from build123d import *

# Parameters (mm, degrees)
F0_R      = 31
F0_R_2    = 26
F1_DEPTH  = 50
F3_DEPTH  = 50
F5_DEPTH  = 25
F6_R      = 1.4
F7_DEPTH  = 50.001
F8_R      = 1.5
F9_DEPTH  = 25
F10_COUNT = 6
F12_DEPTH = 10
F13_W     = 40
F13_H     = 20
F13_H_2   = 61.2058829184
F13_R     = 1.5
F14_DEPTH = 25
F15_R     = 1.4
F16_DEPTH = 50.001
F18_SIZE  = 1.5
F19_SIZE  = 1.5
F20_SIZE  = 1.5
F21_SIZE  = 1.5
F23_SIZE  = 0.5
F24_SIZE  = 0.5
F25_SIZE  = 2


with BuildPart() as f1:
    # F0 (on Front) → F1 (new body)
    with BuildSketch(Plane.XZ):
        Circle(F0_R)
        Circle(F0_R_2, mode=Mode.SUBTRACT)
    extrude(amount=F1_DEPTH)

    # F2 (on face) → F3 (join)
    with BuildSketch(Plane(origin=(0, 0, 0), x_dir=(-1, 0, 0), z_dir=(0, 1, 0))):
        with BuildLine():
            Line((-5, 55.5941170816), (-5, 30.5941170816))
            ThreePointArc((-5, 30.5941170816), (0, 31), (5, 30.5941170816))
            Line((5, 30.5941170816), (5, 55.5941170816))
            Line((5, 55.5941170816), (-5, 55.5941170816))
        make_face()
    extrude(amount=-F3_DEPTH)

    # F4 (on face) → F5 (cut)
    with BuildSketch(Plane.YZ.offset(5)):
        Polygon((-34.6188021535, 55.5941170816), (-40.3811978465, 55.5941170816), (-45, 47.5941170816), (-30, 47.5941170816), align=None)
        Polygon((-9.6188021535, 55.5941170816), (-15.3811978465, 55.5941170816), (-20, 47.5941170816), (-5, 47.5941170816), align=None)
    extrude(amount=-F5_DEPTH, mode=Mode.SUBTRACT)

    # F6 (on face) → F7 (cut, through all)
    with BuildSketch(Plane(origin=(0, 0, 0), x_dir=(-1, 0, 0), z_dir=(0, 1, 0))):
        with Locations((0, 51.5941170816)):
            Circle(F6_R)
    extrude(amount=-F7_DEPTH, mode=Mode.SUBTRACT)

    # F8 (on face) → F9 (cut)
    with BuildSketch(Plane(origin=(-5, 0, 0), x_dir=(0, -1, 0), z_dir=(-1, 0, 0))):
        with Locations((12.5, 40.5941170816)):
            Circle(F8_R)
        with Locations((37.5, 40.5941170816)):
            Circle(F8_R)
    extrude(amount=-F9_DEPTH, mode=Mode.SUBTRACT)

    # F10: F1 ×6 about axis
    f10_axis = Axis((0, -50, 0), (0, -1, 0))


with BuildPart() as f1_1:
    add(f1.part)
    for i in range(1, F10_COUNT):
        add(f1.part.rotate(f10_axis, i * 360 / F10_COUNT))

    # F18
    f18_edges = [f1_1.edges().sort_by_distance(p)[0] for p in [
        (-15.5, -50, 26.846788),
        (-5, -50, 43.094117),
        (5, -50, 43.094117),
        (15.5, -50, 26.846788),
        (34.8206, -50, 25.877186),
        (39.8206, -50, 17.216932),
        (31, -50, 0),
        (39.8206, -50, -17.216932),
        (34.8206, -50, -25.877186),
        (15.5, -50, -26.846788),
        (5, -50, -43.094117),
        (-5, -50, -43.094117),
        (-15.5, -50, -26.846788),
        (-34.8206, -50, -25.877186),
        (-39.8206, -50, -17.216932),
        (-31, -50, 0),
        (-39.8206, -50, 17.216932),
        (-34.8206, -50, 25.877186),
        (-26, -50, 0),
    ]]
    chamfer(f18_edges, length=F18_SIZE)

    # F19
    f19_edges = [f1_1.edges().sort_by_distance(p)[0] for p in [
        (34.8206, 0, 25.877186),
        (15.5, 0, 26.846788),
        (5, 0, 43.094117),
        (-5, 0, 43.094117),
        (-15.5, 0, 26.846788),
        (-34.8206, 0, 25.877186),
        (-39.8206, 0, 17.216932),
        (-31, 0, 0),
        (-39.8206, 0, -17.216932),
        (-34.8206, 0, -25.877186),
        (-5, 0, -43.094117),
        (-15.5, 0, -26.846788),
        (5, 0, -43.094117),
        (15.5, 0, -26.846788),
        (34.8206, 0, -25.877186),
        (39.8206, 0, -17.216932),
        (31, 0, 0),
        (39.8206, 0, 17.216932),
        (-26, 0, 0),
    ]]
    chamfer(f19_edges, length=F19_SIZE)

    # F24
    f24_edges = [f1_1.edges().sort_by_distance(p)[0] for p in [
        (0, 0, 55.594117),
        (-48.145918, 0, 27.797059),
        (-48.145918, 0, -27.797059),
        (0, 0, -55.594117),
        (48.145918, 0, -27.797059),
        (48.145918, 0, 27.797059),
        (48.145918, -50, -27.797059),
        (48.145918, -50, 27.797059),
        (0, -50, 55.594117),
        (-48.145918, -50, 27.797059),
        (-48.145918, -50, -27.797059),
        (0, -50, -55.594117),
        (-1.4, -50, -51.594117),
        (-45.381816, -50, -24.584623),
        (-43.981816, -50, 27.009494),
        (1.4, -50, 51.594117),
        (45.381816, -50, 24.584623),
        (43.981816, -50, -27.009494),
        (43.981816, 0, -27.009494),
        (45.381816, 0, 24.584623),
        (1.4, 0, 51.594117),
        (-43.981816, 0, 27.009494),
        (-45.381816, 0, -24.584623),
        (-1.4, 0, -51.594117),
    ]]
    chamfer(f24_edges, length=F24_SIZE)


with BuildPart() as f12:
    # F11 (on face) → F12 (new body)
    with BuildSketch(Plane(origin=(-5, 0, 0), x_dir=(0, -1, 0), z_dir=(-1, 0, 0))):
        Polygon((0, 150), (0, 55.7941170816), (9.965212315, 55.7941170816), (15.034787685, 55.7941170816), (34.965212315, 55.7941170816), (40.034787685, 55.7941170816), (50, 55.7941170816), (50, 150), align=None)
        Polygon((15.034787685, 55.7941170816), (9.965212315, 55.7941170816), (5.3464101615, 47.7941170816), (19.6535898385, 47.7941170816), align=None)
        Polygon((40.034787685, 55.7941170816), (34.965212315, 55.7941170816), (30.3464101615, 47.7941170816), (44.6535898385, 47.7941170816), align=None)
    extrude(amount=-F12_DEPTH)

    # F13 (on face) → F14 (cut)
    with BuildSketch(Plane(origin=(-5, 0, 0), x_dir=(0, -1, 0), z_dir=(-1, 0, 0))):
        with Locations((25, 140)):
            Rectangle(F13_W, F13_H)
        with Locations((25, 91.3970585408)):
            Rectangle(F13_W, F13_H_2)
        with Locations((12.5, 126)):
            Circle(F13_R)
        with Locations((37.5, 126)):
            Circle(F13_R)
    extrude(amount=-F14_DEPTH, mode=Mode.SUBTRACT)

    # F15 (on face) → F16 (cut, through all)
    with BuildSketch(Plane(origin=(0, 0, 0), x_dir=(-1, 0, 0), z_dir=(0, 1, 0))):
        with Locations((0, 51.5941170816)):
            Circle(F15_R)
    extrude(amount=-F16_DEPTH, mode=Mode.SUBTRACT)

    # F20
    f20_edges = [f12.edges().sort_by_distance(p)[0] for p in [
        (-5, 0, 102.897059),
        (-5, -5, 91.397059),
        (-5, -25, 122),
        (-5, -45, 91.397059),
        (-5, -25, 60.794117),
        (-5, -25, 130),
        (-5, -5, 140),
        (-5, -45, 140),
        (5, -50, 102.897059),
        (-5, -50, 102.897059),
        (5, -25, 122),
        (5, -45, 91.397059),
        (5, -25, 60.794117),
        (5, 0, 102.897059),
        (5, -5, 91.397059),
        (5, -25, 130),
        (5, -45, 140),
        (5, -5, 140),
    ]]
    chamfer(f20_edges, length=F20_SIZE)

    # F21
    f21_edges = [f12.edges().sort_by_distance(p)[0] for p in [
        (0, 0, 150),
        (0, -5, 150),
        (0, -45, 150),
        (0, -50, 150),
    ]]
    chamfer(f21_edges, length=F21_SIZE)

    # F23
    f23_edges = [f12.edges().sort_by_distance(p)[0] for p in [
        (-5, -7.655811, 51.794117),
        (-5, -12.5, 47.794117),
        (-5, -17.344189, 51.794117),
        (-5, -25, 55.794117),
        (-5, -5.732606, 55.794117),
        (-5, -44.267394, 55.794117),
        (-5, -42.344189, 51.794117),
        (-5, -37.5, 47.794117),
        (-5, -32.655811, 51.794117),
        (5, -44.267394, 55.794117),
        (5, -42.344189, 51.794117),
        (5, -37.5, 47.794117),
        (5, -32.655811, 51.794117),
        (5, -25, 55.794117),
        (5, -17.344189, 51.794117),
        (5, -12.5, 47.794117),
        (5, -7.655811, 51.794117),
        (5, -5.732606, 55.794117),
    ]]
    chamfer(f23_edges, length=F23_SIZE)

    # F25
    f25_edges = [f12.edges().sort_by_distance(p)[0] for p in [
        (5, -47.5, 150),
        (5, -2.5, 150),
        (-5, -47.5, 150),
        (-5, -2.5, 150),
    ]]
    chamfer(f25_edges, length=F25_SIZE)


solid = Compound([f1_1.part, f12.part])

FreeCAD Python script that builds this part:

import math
import FreeCAD as App
import Part
import Sketcher
from FreeCAD import Vector
Q = App.Units.Quantity


def edges_at(feature, points):
    """Names of the edges that pass closest to the given points."""
    edges = feature.Shape.Edges
    near = lambda p: min(range(len(edges)), key=lambda i: edges[i].distToShape(Part.Vertex(*p))[0])
    return sorted({f"Edge{near(p) + 1}" for p in points})

doc = App.newDocument("Part")
body = doc.addObject("PartDesign::Body", "Body")

# Sketch on XZ plane
sketch1 = body.newObject("Sketcher::SketchObject", "Sketch")
sketch1.AttachmentSupport = (doc.getObject("XZ_Plane"), [""])
sketch1.MapMode = "FlatFace"
sketch1.addGeometry([
    Part.Circle(Vector(0, 0, 0), Vector(0, 0, 1), 31),
    Part.Circle(Vector(0, 0, 0), Vector(0, 0, 1), 26),
], False)
sketch1.addConstraint([
    Sketcher.Constraint("Coincident", 0, 3, -1, 1),
    Sketcher.Constraint("Coincident", 1, 3, -1, 1),
    Sketcher.Constraint("Diameter", 0, 62.0),
    Sketcher.Constraint("Diameter", 1, 52.0),
])
pad1 = body.newObject("PartDesign::Pad", "Pad")
pad1.Profile = sketch1
pad1.Length = 50

# Sketch on XZ plane
sketch2 = body.newObject("Sketcher::SketchObject", "Sketch001")
sketch2.AttachmentSupport = (doc.getObject("XZ_Plane"), [""])
sketch2.MapMode = "FlatFace"
sketch2.addGeometry([
    Part.LineSegment(Vector(5, 55.594117, 0), Vector(5, 30.594117, 0)),
    Part.ArcOfCircle(Part.Circle(Vector(0, 0, 0), Vector(0, 0, 1), 31), math.radians(80.718201), math.radians(99.281799)),
    Part.LineSegment(Vector(-5, 30.594117, 0), Vector(-5, 55.594117, 0)),
    Part.LineSegment(Vector(-5, 55.594117, 0), Vector(5, 55.594117, 0)),
], False)
sketch2.addConstraint([
    Sketcher.Constraint("Coincident", 0, 2, 1, 1),
    Sketcher.Constraint("Coincident", 1, 2, 2, 1),
    Sketcher.Constraint("Coincident", 2, 2, 3, 1),
    Sketcher.Constraint("Coincident", 3, 2, 0, 1),
    Sketcher.Constraint("Vertical", 0),
    Sketcher.Constraint("Vertical", 2),
    Sketcher.Constraint("Horizontal", 3),
    Sketcher.Constraint("Coincident", 1, 3, -1, 1),
    Sketcher.Constraint("Horizontal", 0, 2, 1, 2),
    Sketcher.Constraint("Radius", 1, 31.0),
    Sketcher.Constraint("DistanceX", 3, 1, 3, 2, 10.0),
    Sketcher.Constraint("DistanceY", 0, 2, 0, 1, 25.0),
])
pad2 = body.newObject("PartDesign::Pad", "Pad001")
pad2.Profile = sketch2
pad2.Length = 50

# Sketch on YZ plane
sketch3 = body.newObject("Sketcher::SketchObject", "Sketch002")
sketch3.AttachmentSupport = (doc.getObject("YZ_Plane"), [""])
sketch3.MapMode = "FlatFace"
sketch3.AttachmentOffset = App.Placement(Vector(0, 0, 5), App.Rotation())
sketch3.addGeometry([
    Part.LineSegment(Vector(-34.618802, 55.594117, 0), Vector(-40.381198, 55.594117, 0)),  # 0
    Part.LineSegment(Vector(-40.381198, 55.594117, 0), Vector(-45, 47.594117, 0)),  # 1
    Part.LineSegment(Vector(-45, 47.594117, 0), Vector(-30, 47.594117, 0)),  # 2
    Part.LineSegment(Vector(-30, 47.594117, 0), Vector(-34.618802, 55.594117, 0)),  # 3
    Part.LineSegment(Vector(-9.618802, 55.594117, 0), Vector(-15.381198, 55.594117, 0)),  # 4
    Part.LineSegment(Vector(-15.381198, 55.594117, 0), Vector(-20, 47.594117, 0)),  # 5
    Part.LineSegment(Vector(-20, 47.594117, 0), Vector(-5, 47.594117, 0)),  # 6
    Part.LineSegment(Vector(-5, 47.594117, 0), Vector(-9.618802, 55.594117, 0)),  # 7
], False)
sketch3.addConstraint([
    Sketcher.Constraint("Coincident", 0, 2, 1, 1),
    Sketcher.Constraint("Coincident", 1, 2, 2, 1),
    Sketcher.Constraint("Coincident", 2, 2, 3, 1),
    Sketcher.Constraint("Coincident", 3, 2, 0, 1),
    Sketcher.Constraint("Coincident", 4, 2, 5, 1),
    Sketcher.Constraint("Coincident", 5, 2, 6, 1),
    Sketcher.Constraint("Coincident", 6, 2, 7, 1),
    Sketcher.Constraint("Coincident", 7, 2, 4, 1),
    Sketcher.Constraint("Horizontal", 0),
    Sketcher.Constraint("Horizontal", 2),
    Sketcher.Constraint("Horizontal", 4),
    Sketcher.Constraint("Horizontal", 6),
    Sketcher.Constraint("Parallel", 1, 5),
    Sketcher.Constraint("Parallel", 3, 7),
    Sketcher.Constraint("Horizontal", 3, 2, 4, 2),
    Sketcher.Constraint("Horizontal", 2, 2, 5, 2),
    Sketcher.Constraint("Equal", 0, 4),
    Sketcher.Constraint("Equal", 1, 3),
    Sketcher.Constraint("DistanceX", 2, 1, 2, 2, 15.0),
    Sketcher.Constraint("Angle", 1, Q("-120 deg")),
    Sketcher.Constraint("DistanceX", 1, 2, -1, 1, 45.0),
    Sketcher.Constraint("DistanceX", 5, 2, -1, 1, 20.0),
    Sketcher.Constraint("DistanceY", 1, 2, 0, 2, 8.0),
    Sketcher.Constraint("DistanceY", -1, 1, 0, 2, 55.594117),
])
pocket1 = body.newObject("PartDesign::Pocket", "Pocket")
pocket1.Profile = sketch3
pocket1.Length = 25

# Sketch on XZ plane
sketch4 = body.newObject("Sketcher::SketchObject", "Sketch003")
sketch4.AttachmentSupport = (doc.getObject("XZ_Plane"), [""])
sketch4.MapMode = "FlatFace"
sketch4.addGeometry(Part.Circle(Vector(0, 51.594117, 0), Vector(0, 0, 1), 1.4), False)
sketch4.addConstraint([
    Sketcher.Constraint("PointOnObject", 0, 3, -2),
    Sketcher.Constraint("Diameter", 0, 2.8),
    Sketcher.Constraint("DistanceY", -1, 1, 0, 3, 51.594117),
])
pocket2 = body.newObject("PartDesign::Pocket", "Pocket001")
pocket2.Profile = sketch4
pocket2.Type = "ThroughAll"
pocket2.Reversed = True

# Sketch on YZ plane
sketch5 = body.newObject("Sketcher::SketchObject", "Sketch004")
sketch5.AttachmentSupport = (doc.getObject("YZ_Plane"), [""])
sketch5.MapMode = "FlatFace"
sketch5.AttachmentOffset = App.Placement(Vector(0, 0, -5), App.Rotation())
sketch5.addGeometry([
    Part.Circle(Vector(-12.5, 40.594117, 0), Vector(0, 0, 1), 1.5),
    Part.Circle(Vector(-37.5, 40.594117, 0), Vector(0, 0, 1), 1.5),
], False)
sketch5.addConstraint([
    Sketcher.Constraint("Equal", 0, 1),
    Sketcher.Constraint("Horizontal", 0, 3, 1, 3),
    Sketcher.Constraint("Diameter", 0, 3.0),
    Sketcher.Constraint("DistanceX", 1, 3, 0, 3, 25.0),
    Sketcher.Constraint("DistanceX", 0, 3, -1, 1, 12.5),
    Sketcher.Constraint("DistanceY", -1, 1, 0, 3, 40.594117),
])
pocket3 = body.newObject("PartDesign::Pocket", "Pocket002")
pocket3.Profile = sketch5
pocket3.Length = 25
pocket3.Reversed = True
body2 = doc.addObject("PartDesign::Body", "Body001")
doc.recompute()

body2.BaseFeature = body
doc.recompute()

body3 = doc.addObject("PartDesign::Body", "Body002")
body3.BaseFeature = body
body3.Placement = App.Placement(Vector(0, 0, 0), App.Rotation(Vector(0, -1, 0), 60))
boolean = body2.newObject("PartDesign::Boolean", "Boolean")
boolean.Type = "Fuse"
boolean.addObjects([body3])
doc.recompute()

body4 = doc.addObject("PartDesign::Body", "Body003")
body4.BaseFeature = body
body4.Placement = App.Placement(Vector(0, 0, 0), App.Rotation(Vector(0, -1, 0), 120))
boolean2 = body2.newObject("PartDesign::Boolean", "Boolean001")
boolean2.Type = "Fuse"
boolean2.addObjects([body4])
doc.recompute()

body5 = doc.addObject("PartDesign::Body", "Body004")
body5.BaseFeature = body
body5.Placement = App.Placement(Vector(0, 0, 0), App.Rotation(Vector(0, -1, 0), 180))
boolean3 = body2.newObject("PartDesign::Boolean", "Boolean002")
boolean3.Type = "Fuse"
boolean3.addObjects([body5])
doc.recompute()

body6 = doc.addObject("PartDesign::Body", "Body005")
body6.BaseFeature = body
body6.Placement = App.Placement(Vector(0, 0, 0), App.Rotation(Vector(0, -1, 0), 240))
boolean4 = body2.newObject("PartDesign::Boolean", "Boolean003")
boolean4.Type = "Fuse"
boolean4.addObjects([body6])
doc.recompute()

body.Placement = App.Placement(Vector(0, 0, 0), App.Rotation(Vector(0, -1, 0), 300))
boolean5 = body2.newObject("PartDesign::Boolean", "Boolean004")
boolean5.Type = "Fuse"
boolean5.addObjects([body])
doc.recompute()

chamfer = body2.newObject("PartDesign::Chamfer", "Chamfer")
chamfer.Base = (boolean5, edges_at(boolean5, [
    (-15.5, -50, 26.847),
    (-5, -50, 43.094),
    (5, -50, 43.094),
    (15.5, -50, 26.847),
    (34.821, -50, 25.877),
    (39.821, -50, 17.217),
    (31, -50, 0),
    (39.821, -50, -17.217),
    (34.821, -50, -25.877),
    (15.5, -50, -26.847),
    (5, -50, -43.094),
    (-5, -50, -43.094),
    (-15.5, -50, -26.847),
    (-34.821, -50, -25.877),
    (-39.821, -50, -17.217),
    (-31, -50, 0),
    (-39.821, -50, 17.217),
    (-34.821, -50, 25.877),
    (-26, -50, 0),
]))
chamfer.Size = 1.5
doc.recompute()

chamfer2 = body2.newObject("PartDesign::Chamfer", "Chamfer001")
chamfer2.Base = (chamfer, edges_at(chamfer, [
    (34.821, 0, 25.877),
    (15.5, 0, 26.847),
    (5, 0, 43.094),
    (-5, 0, 43.094),
    (-15.5, 0, 26.847),
    (-34.821, 0, 25.877),
    (-39.821, 0, 17.217),
    (-31, 0, 0),
    (-39.821, 0, -17.217),
    (-34.821, 0, -25.877),
    (-5, 0, -43.094),
    (-15.5, 0, -26.847),
    (5, 0, -43.094),
    (15.5, 0, -26.847),
    (34.821, 0, -25.877),
    (39.821, 0, -17.217),
    (31, 0, 0),
    (39.821, 0, 17.217),
    (-26, 0, 0),
]))
chamfer2.Size = 1.5
doc.recompute()

chamfer3 = body2.newObject("PartDesign::Chamfer", "Chamfer002")
chamfer3.Base = (chamfer2, edges_at(chamfer2, [
    (0, 0, 55.594),
    (-48.146, 0, 27.797),
    (-48.146, 0, -27.797),
    (0, 0, -55.594),
    (48.146, 0, -27.797),
    (48.146, 0, 27.797),
    (48.146, -50, -27.797),
    (48.146, -50, 27.797),
    (0, -50, 55.594),
    (-48.146, -50, 27.797),
    (-48.146, -50, -27.797),
    (0, -50, -55.594),
    (-1.4, -50, -51.594),
    (-45.382, -50, -24.585),
    (-43.982, -50, 27.009),
    (1.4, -50, 51.594),
    (45.382, -50, 24.585),
    (43.982, -50, -27.009),
    (43.982, 0, -27.009),
    (45.382, 0, 24.585),
    (1.4, 0, 51.594),
    (-43.982, 0, 27.009),
    (-45.382, 0, -24.585),
    (-1.4, 0, -51.594),
]))
chamfer3.Size = 0.5
body7 = doc.addObject("PartDesign::Body", "Body006")

# Sketch on YZ plane
sketch6 = body7.newObject("Sketcher::SketchObject", "Sketch005")
sketch6.AttachmentSupport = (doc.getObject("YZ_Plane006"), [""])
sketch6.MapMode = "FlatFace"
sketch6.AttachmentOffset = App.Placement(Vector(0, 0, -5), App.Rotation())
sketch6.addGeometry([
    Part.LineSegment(Vector(0, 150, 0), Vector(0, 55.794117, 0)),  # 0
    Part.LineSegment(Vector(0, 55.794117, 0), Vector(-9.965212, 55.794117, 0)),  # 1
    Part.LineSegment(Vector(-9.965212, 55.794117, 0), Vector(-5.34641, 47.794117, 0)),  # 2
    Part.LineSegment(Vector(-5.34641, 47.794117, 0), Vector(-19.65359, 47.794117, 0)),  # 3
    Part.LineSegment(Vector(-19.65359, 47.794117, 0), Vector(-15.034788, 55.794117, 0)),  # 4
    Part.LineSegment(Vector(-15.034788, 55.794117, 0), Vector(-34.965212, 55.794117, 0)),  # 5
    Part.LineSegment(Vector(-34.965212, 55.794117, 0), Vector(-30.34641, 47.794117, 0)),  # 6
    Part.LineSegment(Vector(-30.34641, 47.794117, 0), Vector(-44.65359, 47.794117, 0)),  # 7
    Part.LineSegment(Vector(-44.65359, 47.794117, 0), Vector(-40.034788, 55.794117, 0)),  # 8
    Part.LineSegment(Vector(-40.034788, 55.794117, 0), Vector(-50, 55.794117, 0)),  # 9
    Part.LineSegment(Vector(-50, 55.794117, 0), Vector(-50, 150, 0)),  # 10
    Part.LineSegment(Vector(-50, 150, 0), Vector(0, 150, 0)),  # 11
], False)
sketch6.addConstraint([
    Sketcher.Constraint("Coincident", 0, 2, 1, 1),
    Sketcher.Constraint("Coincident", 1, 2, 2, 1),
    Sketcher.Constraint("Coincident", 2, 2, 3, 1),
    Sketcher.Constraint("Coincident", 3, 2, 4, 1),
    Sketcher.Constraint("Coincident", 4, 2, 5, 1),
    Sketcher.Constraint("Coincident", 5, 2, 6, 1),
    Sketcher.Constraint("Coincident", 6, 2, 7, 1),
    Sketcher.Constraint("Coincident", 7, 2, 8, 1),
    Sketcher.Constraint("Coincident", 8, 2, 9, 1),
    Sketcher.Constraint("Coincident", 9, 2, 10, 1),
    Sketcher.Constraint("Coincident", 10, 2, 11, 1),
    Sketcher.Constraint("Coincident", 11, 2, 0, 1),
    Sketcher.Constraint("Vertical", 0),
    Sketcher.Constraint("Horizontal", 1),
    Sketcher.Constraint("Horizontal", 3),
    Sketcher.Constraint("Horizontal", 5),
    Sketcher.Constraint("Horizontal", 7),
    Sketcher.Constraint("Horizontal", 9),
    Sketcher.Constraint("Vertical", 10),
    Sketcher.Constraint("Horizontal", 11),
    Sketcher.Constraint("PointOnObject", 0, 2, -2),
    Sketcher.Constraint("Parallel", 2, 6),
    Sketcher.Constraint("Parallel", 4, 8),
    Sketcher.Constraint("Horizontal", 1, 2, 4, 2),
    Sketcher.Constraint("Horizontal", 3, 2, 6, 2),
    Sketcher.Constraint("Horizontal", 5, 2, 8, 2),
    Sketcher.Constraint("Equal", 3, 7),
    Sketcher.Constraint("Equal", 1, 9),
    Sketcher.Constraint("Equal", 2, 4),
    Sketcher.Constraint("DistanceX", 11, 1, 11, 2, 50.0),
    Sketcher.Constraint("Angle", 2, Q("-60 deg")),
    Sketcher.Constraint("DistanceY", -1, 1, 10, 2, 150.0),
    Sketcher.Constraint("DistanceY", 2, 2, 1, 2, 8.0),
    Sketcher.Constraint("DistanceX", 5, 2, 1, 2, 25.0),
    Sketcher.Constraint("DistanceX", 3, 2, 3, 1, 14.30718),
    Sketcher.Constraint("DistanceY", 0, 2, 0, 1, 94.205883),
])
pad3 = body7.newObject("PartDesign::Pad", "Pad002")
pad3.Profile = sketch6
pad3.Length = 10

# Sketch on YZ plane
sketch7 = body7.newObject("Sketcher::SketchObject", "Sketch006")
sketch7.AttachmentSupport = (doc.getObject("YZ_Plane006"), [""])
sketch7.MapMode = "FlatFace"
sketch7.AttachmentOffset = App.Placement(Vector(0, 0, -5), App.Rotation())
sketch7.addGeometry([
    Part.LineSegment(Vector(-5, 150, 0), Vector(-5, 130, 0)),  # 0
    Part.LineSegment(Vector(-5, 130, 0), Vector(-45, 130, 0)),  # 1
    Part.LineSegment(Vector(-45, 130, 0), Vector(-45, 150, 0)),  # 2
    Part.LineSegment(Vector(-45, 150, 0), Vector(-5, 150, 0)),  # 3
    Part.LineSegment(Vector(-5, 122, 0), Vector(-5, 60.794117, 0)),  # 4
    Part.LineSegment(Vector(-5, 60.794117, 0), Vector(-45, 60.794117, 0)),  # 5
    Part.LineSegment(Vector(-45, 60.794117, 0), Vector(-45, 122, 0)),  # 6
    Part.LineSegment(Vector(-45, 122, 0), Vector(-5, 122, 0)),  # 7
    Part.Circle(Vector(-12.5, 126, 0), Vector(0, 0, 1), 1.5),  # 8
    Part.Circle(Vector(-37.5, 126, 0), Vector(0, 0, 1), 1.5),  # 9
], False)
sketch7.addConstraint([
    Sketcher.Constraint("Coincident", 0, 2, 1, 1),
    Sketcher.Constraint("Coincident", 1, 2, 2, 1),
    Sketcher.Constraint("Coincident", 2, 2, 3, 1),
    Sketcher.Constraint("Coincident", 3, 2, 0, 1),
    Sketcher.Constraint("Coincident", 4, 2, 5, 1),
    Sketcher.Constraint("Coincident", 5, 2, 6, 1),
    Sketcher.Constraint("Coincident", 6, 2, 7, 1),
    Sketcher.Constraint("Coincident", 7, 2, 4, 1),
    Sketcher.Constraint("Vertical", 0),
    Sketcher.Constraint("Horizontal", 1),
    Sketcher.Constraint("Vertical", 2),
    Sketcher.Constraint("Horizontal", 3),
    Sketcher.Constraint("Vertical", 4),
    Sketcher.Constraint("Horizontal", 5),
    Sketcher.Constraint("Vertical", 6),
    Sketcher.Constraint("Horizontal", 7),
    Sketcher.Constraint("Equal", 8, 9),
    Sketcher.Constraint("Horizontal", 8, 3, 9, 3),
    Sketcher.Constraint("Vertical", 3, 2, 4, 2),
    Sketcher.Constraint("Vertical", 2, 2, 5, 2),
    Sketcher.Constraint("Diameter", 8, 3.0),
    Sketcher.Constraint("DistanceX", 1, 2, 1, 1, 40.0),
    Sketcher.Constraint("DistanceY", 0, 2, 0, 1, 20.0),
    Sketcher.Constraint("DistanceY", -1, 1, 8, 3, 126.0),
    Sketcher.Constraint("DistanceX", 0, 2, -1, 1, 5.0),
    Sketcher.Constraint("DistanceY", -1, 1, 0, 2, 130.0),
    Sketcher.Constraint("DistanceY", -1, 1, 6, 2, 122.0),
    Sketcher.Constraint("DistanceX", 9, 3, 8, 3, 25.0),
    Sketcher.Constraint("DistanceX", 8, 3, -1, 1, 12.5),
    Sketcher.Constraint("DistanceY", 4, 2, 4, 1, 61.205883),
])
pocket4 = body7.newObject("PartDesign::Pocket", "Pocket003")
pocket4.Profile = sketch7
pocket4.Length = 25
pocket4.Reversed = True

# Sketch on XZ plane
sketch8 = body7.newObject("Sketcher::SketchObject", "Sketch007")
sketch8.AttachmentSupport = (doc.getObject("XZ_Plane006"), [""])
sketch8.MapMode = "FlatFace"
sketch8.addGeometry(Part.Circle(Vector(0, 51.594117, 0), Vector(0, 0, 1), 1.4), False)
sketch8.addConstraint([
    Sketcher.Constraint("PointOnObject", 0, 3, -2),
    Sketcher.Constraint("Diameter", 0, 2.8),
    Sketcher.Constraint("DistanceY", -1, 1, 0, 3, 51.594117),
])
pocket5 = body7.newObject("PartDesign::Pocket", "Pocket004")
pocket5.Profile = sketch8
pocket5.Type = "ThroughAll"
pocket5.Reversed = True
doc.recompute()

chamfer4 = body7.newObject("PartDesign::Chamfer", "Chamfer003")
chamfer4.Base = (pocket5, edges_at(pocket5, [
    (-5, 0, 102.897),
    (-5, -5, 91.397),
    (-5, -25, 122),
    (-5, -45, 91.397),
    (-5, -25, 60.794),
    (-5, -25, 130),
    (-5, -5, 140),
    (-5, -45, 140),
    (5, -50, 102.897),
    (-5, -50, 102.897),
    (5, -25, 122),
    (5, -45, 91.397),
    (5, -25, 60.794),
    (5, 0, 102.897),
    (5, -5, 91.397),
    (5, -25, 130),
    (5, -45, 140),
    (5, -5, 140),
]))
chamfer4.Size = 1.5
doc.recompute()

chamfer5 = body7.newObject("PartDesign::Chamfer", "Chamfer004")
chamfer5.Base = (chamfer4, edges_at(chamfer4, [
    (0, 0, 150),
    (0, -5, 150),
    (0, -45, 150),
    (0, -50, 150),
]))
chamfer5.Size = 1.5
doc.recompute()

chamfer6 = body7.newObject("PartDesign::Chamfer", "Chamfer005")
chamfer6.Base = (chamfer5, edges_at(chamfer5, [
    (-5, -7.656, 51.794),
    (-5, -12.5, 47.794),
    (-5, -17.344, 51.794),
    (-5, -25, 55.794),
    (-5, -5.733, 55.794),
    (-5, -44.267, 55.794),
    (-5, -42.344, 51.794),
    (-5, -37.5, 47.794),
    (-5, -32.656, 51.794),
    (5, -44.267, 55.794),
    (5, -42.344, 51.794),
    (5, -37.5, 47.794),
    (5, -32.656, 51.794),
    (5, -25, 55.794),
    (5, -17.344, 51.794),
    (5, -12.5, 47.794),
    (5, -7.656, 51.794),
    (5, -5.733, 55.794),
]))
chamfer6.Size = 0.5
doc.recompute()

chamfer7 = body7.newObject("PartDesign::Chamfer", "Chamfer006")
chamfer7.Base = (chamfer6, edges_at(chamfer6, [
    (5, -47.5, 150),
    (5, -2.5, 150),
    (-5, -47.5, 150),
    (-5, -2.5, 150),
]))
chamfer7.Size = 2

doc.recompute()
